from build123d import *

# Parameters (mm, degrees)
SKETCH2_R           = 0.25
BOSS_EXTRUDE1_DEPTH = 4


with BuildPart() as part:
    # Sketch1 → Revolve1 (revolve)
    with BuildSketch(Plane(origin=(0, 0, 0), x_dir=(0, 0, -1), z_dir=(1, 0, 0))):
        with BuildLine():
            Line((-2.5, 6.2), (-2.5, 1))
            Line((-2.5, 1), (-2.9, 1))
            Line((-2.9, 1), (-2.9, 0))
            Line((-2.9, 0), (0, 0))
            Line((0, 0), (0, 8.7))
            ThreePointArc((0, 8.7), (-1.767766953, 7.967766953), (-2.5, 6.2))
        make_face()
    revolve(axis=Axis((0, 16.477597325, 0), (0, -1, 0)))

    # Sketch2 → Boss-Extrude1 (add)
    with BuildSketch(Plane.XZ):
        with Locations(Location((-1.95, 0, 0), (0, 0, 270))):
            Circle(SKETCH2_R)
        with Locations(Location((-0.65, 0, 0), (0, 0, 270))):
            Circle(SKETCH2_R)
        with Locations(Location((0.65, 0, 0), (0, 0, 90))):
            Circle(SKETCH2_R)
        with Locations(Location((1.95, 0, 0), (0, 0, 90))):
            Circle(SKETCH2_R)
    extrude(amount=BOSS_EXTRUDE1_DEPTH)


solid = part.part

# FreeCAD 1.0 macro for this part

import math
import FreeCAD as App
import Part
import Sketcher

V = App.Vector

doc = App.newDocument("Part")
params = doc.addObject("Spreadsheet::Sheet", "Params")
for row, (alias, value) in enumerate([
    ("sketch1_radius", "2.5 mm"),
    ("sketch1_width", "1 mm"),
    ("sketch1_width2", "5.2 mm"),
    ("sketch1_height", "0.4 mm"),
    ("revolution_angle", "360 deg"),
    ("sketch2_diameter", "0.5 mm"),
    ("pad1_length", "4 mm"),
], start=1):
    params.set(f"A{row}", alias)
    params.set(f"B{row}", "=" + value)
    params.setAlias(f"B{row}", alias)

body = doc.addObject("PartDesign::Body", "Body")

# Sketch on YZ plane
sketch1 = body.newObject("Sketcher::SketchObject", "Sketch")
sketch1.AttachmentSupport = (doc.getObject("YZ_Plane"), [""])
sketch1.MapMode = "FlatFace"
sketch1.addGeometry([
    Part.LineSegment(V(6.2, 2.5, 0), V(1, 2.5, 0)),  # 0
    Part.LineSegment(V(1, 2.5, 0), V(1, 2.9, 0)),  # 1
    Part.LineSegment(V(1, 2.9, 0), V(0, 2.9, 0)),  # 2
    Part.LineSegment(V(0, 2.9, 0), V(0, 0, 0)),  # 3
    Part.LineSegment(V(0, 0, 0), V(8.7, 0, 0)),  # 4
    Part.ArcOfCircle(Part.Circle(V(6.2, 0, 0), V(0, 0, 1), 2.5), math.radians(0), math.radians(90)),  # 5
], False)
sketch1.addConstraint([
    Sketcher.Constraint("Coincident", 0, 2, 1, 1),
    Sketcher.Constraint("Coincident", 1, 2, 2, 1),
    Sketcher.Constraint("Coincident", 2, 2, 3, 1),
    Sketcher.Constraint("Coincident", 3, 2, 4, 1),
    Sketcher.Constraint("Coincident", 4, 2, 5, 1),
    Sketcher.Constraint("Tangent", 5, 2, 0, 1),
    Sketcher.Constraint("Horizontal", 0),
    Sketcher.Constraint("Vertical", 1),
    Sketcher.Constraint("Horizontal", 2),
    Sketcher.Constraint("Vertical", 3),
    Sketcher.Constraint("Horizontal", 4),
    Sketcher.Constraint("Coincident", 3, 2, -1, 1),
    Sketcher.Constraint("PointOnObject", 5, 3, -1),
    Sketcher.Constraint("Radius", 5, 2.5),
    Sketcher.Constraint("DistanceX", 2, 2, 2, 1, 1.0),
    Sketcher.Constraint("DistanceX", 0, 2, 0, 1, 5.2),
    Sketcher.Constraint("DistanceY", 1, 1, 1, 2, 0.4),
])
sketch1.setExpression("Constraints[13]", "Params.sketch1_radius")
sketch1.setExpression("Constraints[14]", "Params.sketch1_width")
sketch1.setExpression("Constraints[15]", "Params.sketch1_width2")
sketch1.setExpression("Constraints[16]", "Params.sketch1_height")
revolution = body.newObject("PartDesign::Revolution", "Revolution")
revolution.Profile = sketch1
revolution.ReferenceAxis = (sketch1, ["H_Axis"])
revolution.setExpression("Angle", "Params.revolution_angle")

# Sketch on XZ plane
sketch2 = body.newObject("Sketcher::SketchObject", "Sketch001")
sketch2.AttachmentSupport = (doc.getObject("XZ_Plane"), [""])
sketch2.MapMode = "FlatFace"
sketch2.addGeometry([
    Part.Circle(V(-1.95, 0, 0), V(0, 0, 1), 0.25),
    Part.Circle(V(-0.65, 0, 0), V(0, 0, 1), 0.25),
    Part.Circle(V(0.65, 0, 0), V(0, 0, 1), 0.25),
    Part.Circle(V(1.95, 0, 0), V(0, 0, 1), 0.25),
], False)
sketch2.addConstraint([
    Sketcher.Constraint("Equal", 0, 1),
    Sketcher.Constraint("Equal", 1, 2),
    Sketcher.Constraint("Equal", 2, 3),
    Sketcher.Constraint("Symmetric", 1, 3, 2, 3, -1, 1),
    Sketcher.Constraint("Symmetric", 0, 3, 3, 3, -1, 1),
    Sketcher.Constraint("PointOnObject", 0, 3, -1),
    Sketcher.Constraint("PointOnObject", 1, 3, -1),
    Sketcher.Constraint("Diameter", 0, 0.5),
    Sketcher.Constraint("DistanceX", 0, 3, 1, 3, 1.3),
    Sketcher.Constraint("DistanceX", 1, 3, 2, 3, 1.3),
])
sketch2.setExpression("Constraints[7]", "Params.sketch2_diameter")
pad1 = body.newObject("PartDesign::Pad", "Pad")
pad1.Profile = sketch2
pad1.setExpression("Length", "Params.pad1_length")

doc.recompute()
